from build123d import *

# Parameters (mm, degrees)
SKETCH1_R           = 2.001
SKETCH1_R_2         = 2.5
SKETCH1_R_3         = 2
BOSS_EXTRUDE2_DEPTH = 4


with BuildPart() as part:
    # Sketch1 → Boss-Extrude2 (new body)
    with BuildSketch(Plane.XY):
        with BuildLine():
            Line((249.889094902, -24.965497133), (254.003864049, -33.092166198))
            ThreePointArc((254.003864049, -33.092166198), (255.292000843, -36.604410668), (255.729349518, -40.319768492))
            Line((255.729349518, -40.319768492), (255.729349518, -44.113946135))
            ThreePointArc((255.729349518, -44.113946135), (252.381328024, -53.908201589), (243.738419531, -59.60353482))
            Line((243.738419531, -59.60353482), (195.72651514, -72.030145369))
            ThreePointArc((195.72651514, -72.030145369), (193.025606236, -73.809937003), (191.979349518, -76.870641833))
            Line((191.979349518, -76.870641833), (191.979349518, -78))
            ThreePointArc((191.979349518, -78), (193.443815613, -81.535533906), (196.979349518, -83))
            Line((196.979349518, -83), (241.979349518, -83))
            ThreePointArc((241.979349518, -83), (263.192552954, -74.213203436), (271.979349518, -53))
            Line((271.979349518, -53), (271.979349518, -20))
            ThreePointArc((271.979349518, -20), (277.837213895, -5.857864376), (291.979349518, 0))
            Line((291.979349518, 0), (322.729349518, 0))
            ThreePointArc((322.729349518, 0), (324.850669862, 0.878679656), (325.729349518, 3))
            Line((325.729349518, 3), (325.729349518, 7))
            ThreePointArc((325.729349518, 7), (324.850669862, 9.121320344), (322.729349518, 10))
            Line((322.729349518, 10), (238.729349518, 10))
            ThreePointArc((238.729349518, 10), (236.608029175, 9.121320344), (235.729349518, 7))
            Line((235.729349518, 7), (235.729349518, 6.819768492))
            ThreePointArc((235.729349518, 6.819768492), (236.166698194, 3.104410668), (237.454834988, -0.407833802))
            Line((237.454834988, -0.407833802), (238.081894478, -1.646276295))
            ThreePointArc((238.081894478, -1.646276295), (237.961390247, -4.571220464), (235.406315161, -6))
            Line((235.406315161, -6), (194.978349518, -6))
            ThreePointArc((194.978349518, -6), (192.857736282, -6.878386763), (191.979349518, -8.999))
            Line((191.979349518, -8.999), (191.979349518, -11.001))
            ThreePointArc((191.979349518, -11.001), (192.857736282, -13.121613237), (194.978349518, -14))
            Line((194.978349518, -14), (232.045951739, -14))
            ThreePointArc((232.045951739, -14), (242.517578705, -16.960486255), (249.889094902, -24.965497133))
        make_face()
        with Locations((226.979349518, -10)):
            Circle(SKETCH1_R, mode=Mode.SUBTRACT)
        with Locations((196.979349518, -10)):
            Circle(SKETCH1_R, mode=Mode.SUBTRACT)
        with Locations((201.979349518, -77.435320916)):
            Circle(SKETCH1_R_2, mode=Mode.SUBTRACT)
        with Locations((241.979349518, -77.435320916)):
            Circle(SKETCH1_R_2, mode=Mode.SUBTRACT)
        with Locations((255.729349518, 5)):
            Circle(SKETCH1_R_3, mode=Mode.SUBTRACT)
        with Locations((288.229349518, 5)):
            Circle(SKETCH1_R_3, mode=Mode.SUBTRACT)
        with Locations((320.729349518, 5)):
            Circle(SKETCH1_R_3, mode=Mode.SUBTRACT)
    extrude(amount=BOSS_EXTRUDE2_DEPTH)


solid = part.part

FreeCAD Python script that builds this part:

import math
import FreeCAD as App
import Part
import Sketcher
Q = App.Units.Quantity

doc = App.newDocument("Part")
body = doc.addObject("PartDesign::Body", "Body")

# Sketch on XY plane
sketch1 = doc.addObject("Sketcher::SketchObject", "Sketch")
body.addObject(sketch1)
sketch1.AttachmentSupport = (doc.XY_Plane, [""])
sketch1.MapMode = "FlatFace"
sketch1.addGeometry([
    Part.LineSegment(App.Vector(249.89, -24.97, 0), App.Vector(254, -33.09, 0)),  # 0
    Part.ArcOfCircle(Part.Circle(App.Vector(239.73, -40.32, 0), App.Vector(0, 0, 1), 16), math.radians(0), math.radians(27)),  # 1
    Part.LineSegment(App.Vector(255.73, -40.32, 0), App.Vector(255.73, -44.11, 0)),  # 2
    Part.ArcOfCircle(Part.Circle(App.Vector(239.73, -44.11, 0), App.Vector(0, 0, 1), 16), math.radians(-75), math.radians(0)),  # 3
    Part.LineSegment(App.Vector(243.74, -59.6, 0), App.Vector(195.73, -72.03, 0)),  # 4
    Part.ArcOfCircle(Part.Circle(App.Vector(196.98, -76.87, 0), App.Vector(0, 0, 1), 5), math.radians(105), math.radians(180)),  # 5
    Part.LineSegment(App.Vector(191.98, -76.87, 0), App.Vector(191.98, -78, 0)),  # 6
    Part.ArcOfCircle(Part.Circle(App.Vector(196.98, -78, 0), App.Vector(0, 0, 1), 5), math.radians(-180), math.radians(-90)),  # 7
    Part.LineSegment(App.Vector(196.98, -83, 0), App.Vector(241.98, -83, 0)),  # 8
    Part.ArcOfCircle(Part.Circle(App.Vector(241.98, -53, 0), App.Vector(0, 0, 1), 30), math.radians(-90), math.radians(0)),  # 9
    Part.LineSegment(App.Vector(271.98, -53, 0), App.Vector(271.98, -20, 0)),  # 10
    Part.ArcOfCircle(Part.Circle(App.Vector(291.98, -20, 0), App.Vector(0, 0, 1), 20), math.radians(90), math.radians(180)),  # 11
    Part.LineSegment(App.Vector(291.98, 0, 0), App.Vector(322.73, 0, 0)),  # 12
    Part.ArcOfCircle(Part.Circle(App.Vector(322.73, 3, 0), App.Vector(0, 0, 1), 3), math.radians(-90), math.radians(0)),  # 13
    Part.LineSegment(App.Vector(325.73, 3, 0), App.Vector(325.73, 7, 0)),  # 14
    Part.ArcOfCircle(Part.Circle(App.Vector(322.73, 7, 0), App.Vector(0, 0, 1), 3), math.radians(0), math.radians(90)),  # 15
    Part.LineSegment(App.Vector(322.73, 10, 0), App.Vector(238.73, 10, 0)),  # 16
    Part.ArcOfCircle(Part.Circle(App.Vector(238.73, 7, 0), App.Vector(0, 0, 1), 3), math.radians(90), math.radians(180)),  # 17
    Part.LineSegment(App.Vector(235.73, 7, 0), App.Vector(235.73, 6.82, 0)),  # 18
    Part.ArcOfCircle(Part.Circle(App.Vector(251.73, 6.82, 0), App.Vector(0, 0, 1), 16), math.radians(-180), math.radians(-153)),  # 19
    Part.LineSegment(App.Vector(237.45, -0.41, 0), App.Vector(238.08, -1.65, 0)),  # 20
    Part.ArcOfCircle(Part.Circle(App.Vector(235.41, -3, 0), App.Vector(0, 0, 1), 3), math.radians(-90), math.radians(27)),  # 21
    Part.LineSegment(App.Vector(235.41, -6, 0), App.Vector(194.98, -6, 0)),  # 22
    Part.ArcOfCircle(Part.Circle(App.Vector(194.98, -9, 0), App.Vector(0, 0, 1), 3), math.radians(90), math.radians(180)),  # 23
    Part.LineSegment(App.Vector(191.98, -9, 0), App.Vector(191.98, -11, 0)),  # 24
    Part.ArcOfCircle(Part.Circle(App.Vector(194.98, -11, 0), App.Vector(0, 0, 1), 3), math.radians(-180), math.radians(-90)),  # 25
    Part.LineSegment(App.Vector(194.98, -14, 0), App.Vector(232.05, -14, 0)),  # 26
    Part.ArcOfCircle(Part.Circle(App.Vector(232.05, -34, 0), App.Vector(0, 0, 1), 20), math.radians(27), math.radians(90)),  # 27
    Part.Circle(App.Vector(201.98, -77.44, 0), App.Vector(0, 0, 1), 2.5),  # 28
    Part.Circle(App.Vector(241.98, -77.44, 0), App.Vector(0, 0, 1), 2.5),  # 29
    Part.Circle(App.Vector(196.98, -10, 0), App.Vector(0, 0, 1), 2),  # 30
    Part.Circle(App.Vector(226.98, -10, 0), App.Vector(0, 0, 1), 2),  # 31
    Part.Circle(App.Vector(255.73, 5, 0), App.Vector(0, 0, 1), 2),  # 32
    Part.Circle(App.Vector(288.23, 5, 0), App.Vector(0, 0, 1), 2),  # 33
    Part.Circle(App.Vector(320.73, 5, 0), App.Vector(0, 0, 1), 2),  # 34
], False)
sketch1.addConstraint([
    Sketcher.Constraint("Tangent", 0, 2, 1, 2),
    Sketcher.Constraint("Tangent", 1, 1, 2, 1),
    Sketcher.Constraint("Tangent", 2, 2, 3, 2),
    Sketcher.Constraint("Tangent", 3, 1, 4, 1),
    Sketcher.Constraint("Tangent", 4, 2, 5, 1),
    Sketcher.Constraint("Tangent", 5, 2, 6, 1),
    Sketcher.Constraint("Tangent", 6, 2, 7, 1),
    Sketcher.Constraint("Tangent", 7, 2, 8, 1),
    Sketcher.Constraint("Tangent", 8, 2, 9, 1),
    Sketcher.Constraint("Tangent", 9, 2, 10, 1),
    Sketcher.Constraint("Tangent", 10, 2, 11, 2),
    Sketcher.Constraint("Tangent", 11, 1, 12, 1),
    Sketcher.Constraint("Tangent", 12, 2, 13, 1),
    Sketcher.Constraint("Tangent", 13, 2, 14, 1),
    Sketcher.Constraint("Tangent", 14, 2, 15, 1),
    Sketcher.Constraint("Tangent", 15, 2, 16, 1),
    Sketcher.Constraint("Tangent", 16, 2, 17, 1),
    Sketcher.Constraint("Tangent", 17, 2, 18, 1),
    Sketcher.Constraint("Tangent", 18, 2, 19, 1),
    Sketcher.Constraint("Tangent", 19, 2, 20, 1),
    Sketcher.Constraint("Tangent", 20, 2, 21, 2),
    Sketcher.Constraint("Tangent", 21, 1, 22, 1),
    Sketcher.Constraint("Tangent", 22, 2, 23, 1),
    Sketcher.Constraint("Tangent", 23, 2, 24, 1),
    Sketcher.Constraint("Tangent", 24, 2, 25, 1),
    Sketcher.Constraint("Tangent", 25, 2, 26, 1),
    Sketcher.Constraint("Tangent", 26, 2, 27, 2),
    Sketcher.Constraint("Tangent", 27, 1, 0, 1),
    Sketcher.Constraint("Vertical", 2),
    Sketcher.Constraint("Vertical", 6),
    Sketcher.Constraint("Horizontal", 8),
    Sketcher.Constraint("Vertical", 10),
    Sketcher.Constraint("Horizontal", 12),
    Sketcher.Constraint("Vertical", 14),
    Sketcher.Constraint("Horizontal", 16),
    Sketcher.Constraint("Vertical", 18),
    Sketcher.Constraint("Horizontal", 22),
    Sketcher.Constraint("Vertical", 24),
    Sketcher.Constraint("Horizontal", 26),
    Sketcher.Constraint("Equal", 1, 3),
    Sketcher.Constraint("Equal", 5, 7),
    Sketcher.Constraint("Equal", 13, 15),
    Sketcher.Constraint("Equal", 15, 17),
    Sketcher.Constraint("Equal", 3, 19),
    Sketcher.Constraint("Equal", 21, 23),
    Sketcher.Constraint("Equal", 23, 25),
    Sketcher.Constraint("Equal", 11, 27),
    Sketcher.Constraint("Equal", 28, 29),
    Sketcher.Constraint("Equal", 30, 31),
    Sketcher.Constraint("Equal", 32, 33),
    Sketcher.Constraint("Equal", 33, 34),
    Sketcher.Constraint("PointOnObject", 11, 1, -1),
    Sketcher.Constraint("Parallel", 0, 20),
    Sketcher.Constraint("Horizontal", 28, 3, 29, 3),
    Sketcher.Constraint("Horizontal", 30, 3, 31, 3),
    Sketcher.Constraint("Horizontal", 32, 3, 33, 3),
    Sketcher.Constraint("Horizontal", 33, 3, 34, 3),
    Sketcher.Constraint("Vertical", 9, 3, 29, 3),
    Sketcher.Constraint("Vertical", 7, 3, 30, 3),
    Sketcher.Constraint("Vertical", 32, 3, 1, 1),
    Sketcher.Constraint("Vertical", 6, 2, 23, 2),
    Sketcher.Constraint("Diameter", 28, Q("5 mm")),
    Sketcher.Constraint("Diameter", 32, Q("4 mm")),
    Sketcher.Constraint("Radius", 1, Q("16 mm")),
    Sketcher.Constraint("Radius", 5, Q("5 mm")),
    Sketcher.Constraint("Radius", 9, Q("30 mm")),
    Sketcher.Constraint("Radius", 11, Q("20 mm")),
    Sketcher.Constraint("Radius", 13, Q("3 mm")),
    Sketcher.Constraint("DistanceX", 8, 1, 8, 2, Q("45 mm")),
    Sketcher.Constraint("DistanceX", 16, 2, 16, 1, Q("84 mm")),
    Sketcher.Constraint("DistanceY", 10, 1, 10, 2, Q("33 mm")),
    Sketcher.Constraint("DistanceY", 14, 1, 14, 2, Q("4 mm")),
    Sketcher.Constraint("Diameter", 30, Q("4.002 mm")),
    Sketcher.Constraint("DistanceY", 27, 3, -1, 1, Q("34 mm")),
    Sketcher.Constraint("DistanceY", 30, 3, -1, 1, Q("10 mm")),
    Sketcher.Constraint("DistanceY", -1, 1, 32, 3, Q("5 mm")),
    Sketcher.Constraint("DistanceY", 21, 1, -1, 1, Q("6 mm")),
    Sketcher.Constraint("Radius", 21, Q("2.999 mm")),
    Sketcher.Constraint("DistanceX", 1, 3, 13, 3, Q("83 mm")),
    Sketcher.Constraint("DistanceX", 5, 3, 28, 3, Q("5 mm")),
    Sketcher.Constraint("DistanceX", 30, 3, 31, 3, Q("30 mm")),
    Sketcher.Constraint("DistanceX", 34, 3, 13, 3, Q("2 mm")),
    Sketcher.Constraint("DistanceX", 12, 1, 12, 2, Q("30.75 mm")),
    Sketcher.Constraint("DistanceX", 32, 3, 33, 3, Q("32.5 mm")),
    Sketcher.Constraint("DistanceY", 6, 2, 6, 1, Q("1.129358 mm")),
    Sketcher.Constraint("DistanceY", 18, 2, 18, 1, Q("0.180232 mm")),
    Sketcher.Constraint("Distance", 0, Q("9.109011 mm")),
    Sketcher.Constraint("DistanceX", 22, 2, 22, 1, Q("40.427966 mm")),
    Sketcher.Constraint("DistanceY", 2, 2, 2, 1, Q("3.794178 mm")),
    Sketcher.Constraint("DistanceX", -1, 1, 1, 3, Q("239.72935 mm")),
    Sketcher.Constraint("DistanceY", 28, 3, -1, 1, Q("77.435321 mm")),
])
pad1 = doc.addObject("PartDesign::Pad", "Pad")
body.addObject(pad1)
pad1.Profile = sketch1
pad1.Length = 4

doc.recompute()
